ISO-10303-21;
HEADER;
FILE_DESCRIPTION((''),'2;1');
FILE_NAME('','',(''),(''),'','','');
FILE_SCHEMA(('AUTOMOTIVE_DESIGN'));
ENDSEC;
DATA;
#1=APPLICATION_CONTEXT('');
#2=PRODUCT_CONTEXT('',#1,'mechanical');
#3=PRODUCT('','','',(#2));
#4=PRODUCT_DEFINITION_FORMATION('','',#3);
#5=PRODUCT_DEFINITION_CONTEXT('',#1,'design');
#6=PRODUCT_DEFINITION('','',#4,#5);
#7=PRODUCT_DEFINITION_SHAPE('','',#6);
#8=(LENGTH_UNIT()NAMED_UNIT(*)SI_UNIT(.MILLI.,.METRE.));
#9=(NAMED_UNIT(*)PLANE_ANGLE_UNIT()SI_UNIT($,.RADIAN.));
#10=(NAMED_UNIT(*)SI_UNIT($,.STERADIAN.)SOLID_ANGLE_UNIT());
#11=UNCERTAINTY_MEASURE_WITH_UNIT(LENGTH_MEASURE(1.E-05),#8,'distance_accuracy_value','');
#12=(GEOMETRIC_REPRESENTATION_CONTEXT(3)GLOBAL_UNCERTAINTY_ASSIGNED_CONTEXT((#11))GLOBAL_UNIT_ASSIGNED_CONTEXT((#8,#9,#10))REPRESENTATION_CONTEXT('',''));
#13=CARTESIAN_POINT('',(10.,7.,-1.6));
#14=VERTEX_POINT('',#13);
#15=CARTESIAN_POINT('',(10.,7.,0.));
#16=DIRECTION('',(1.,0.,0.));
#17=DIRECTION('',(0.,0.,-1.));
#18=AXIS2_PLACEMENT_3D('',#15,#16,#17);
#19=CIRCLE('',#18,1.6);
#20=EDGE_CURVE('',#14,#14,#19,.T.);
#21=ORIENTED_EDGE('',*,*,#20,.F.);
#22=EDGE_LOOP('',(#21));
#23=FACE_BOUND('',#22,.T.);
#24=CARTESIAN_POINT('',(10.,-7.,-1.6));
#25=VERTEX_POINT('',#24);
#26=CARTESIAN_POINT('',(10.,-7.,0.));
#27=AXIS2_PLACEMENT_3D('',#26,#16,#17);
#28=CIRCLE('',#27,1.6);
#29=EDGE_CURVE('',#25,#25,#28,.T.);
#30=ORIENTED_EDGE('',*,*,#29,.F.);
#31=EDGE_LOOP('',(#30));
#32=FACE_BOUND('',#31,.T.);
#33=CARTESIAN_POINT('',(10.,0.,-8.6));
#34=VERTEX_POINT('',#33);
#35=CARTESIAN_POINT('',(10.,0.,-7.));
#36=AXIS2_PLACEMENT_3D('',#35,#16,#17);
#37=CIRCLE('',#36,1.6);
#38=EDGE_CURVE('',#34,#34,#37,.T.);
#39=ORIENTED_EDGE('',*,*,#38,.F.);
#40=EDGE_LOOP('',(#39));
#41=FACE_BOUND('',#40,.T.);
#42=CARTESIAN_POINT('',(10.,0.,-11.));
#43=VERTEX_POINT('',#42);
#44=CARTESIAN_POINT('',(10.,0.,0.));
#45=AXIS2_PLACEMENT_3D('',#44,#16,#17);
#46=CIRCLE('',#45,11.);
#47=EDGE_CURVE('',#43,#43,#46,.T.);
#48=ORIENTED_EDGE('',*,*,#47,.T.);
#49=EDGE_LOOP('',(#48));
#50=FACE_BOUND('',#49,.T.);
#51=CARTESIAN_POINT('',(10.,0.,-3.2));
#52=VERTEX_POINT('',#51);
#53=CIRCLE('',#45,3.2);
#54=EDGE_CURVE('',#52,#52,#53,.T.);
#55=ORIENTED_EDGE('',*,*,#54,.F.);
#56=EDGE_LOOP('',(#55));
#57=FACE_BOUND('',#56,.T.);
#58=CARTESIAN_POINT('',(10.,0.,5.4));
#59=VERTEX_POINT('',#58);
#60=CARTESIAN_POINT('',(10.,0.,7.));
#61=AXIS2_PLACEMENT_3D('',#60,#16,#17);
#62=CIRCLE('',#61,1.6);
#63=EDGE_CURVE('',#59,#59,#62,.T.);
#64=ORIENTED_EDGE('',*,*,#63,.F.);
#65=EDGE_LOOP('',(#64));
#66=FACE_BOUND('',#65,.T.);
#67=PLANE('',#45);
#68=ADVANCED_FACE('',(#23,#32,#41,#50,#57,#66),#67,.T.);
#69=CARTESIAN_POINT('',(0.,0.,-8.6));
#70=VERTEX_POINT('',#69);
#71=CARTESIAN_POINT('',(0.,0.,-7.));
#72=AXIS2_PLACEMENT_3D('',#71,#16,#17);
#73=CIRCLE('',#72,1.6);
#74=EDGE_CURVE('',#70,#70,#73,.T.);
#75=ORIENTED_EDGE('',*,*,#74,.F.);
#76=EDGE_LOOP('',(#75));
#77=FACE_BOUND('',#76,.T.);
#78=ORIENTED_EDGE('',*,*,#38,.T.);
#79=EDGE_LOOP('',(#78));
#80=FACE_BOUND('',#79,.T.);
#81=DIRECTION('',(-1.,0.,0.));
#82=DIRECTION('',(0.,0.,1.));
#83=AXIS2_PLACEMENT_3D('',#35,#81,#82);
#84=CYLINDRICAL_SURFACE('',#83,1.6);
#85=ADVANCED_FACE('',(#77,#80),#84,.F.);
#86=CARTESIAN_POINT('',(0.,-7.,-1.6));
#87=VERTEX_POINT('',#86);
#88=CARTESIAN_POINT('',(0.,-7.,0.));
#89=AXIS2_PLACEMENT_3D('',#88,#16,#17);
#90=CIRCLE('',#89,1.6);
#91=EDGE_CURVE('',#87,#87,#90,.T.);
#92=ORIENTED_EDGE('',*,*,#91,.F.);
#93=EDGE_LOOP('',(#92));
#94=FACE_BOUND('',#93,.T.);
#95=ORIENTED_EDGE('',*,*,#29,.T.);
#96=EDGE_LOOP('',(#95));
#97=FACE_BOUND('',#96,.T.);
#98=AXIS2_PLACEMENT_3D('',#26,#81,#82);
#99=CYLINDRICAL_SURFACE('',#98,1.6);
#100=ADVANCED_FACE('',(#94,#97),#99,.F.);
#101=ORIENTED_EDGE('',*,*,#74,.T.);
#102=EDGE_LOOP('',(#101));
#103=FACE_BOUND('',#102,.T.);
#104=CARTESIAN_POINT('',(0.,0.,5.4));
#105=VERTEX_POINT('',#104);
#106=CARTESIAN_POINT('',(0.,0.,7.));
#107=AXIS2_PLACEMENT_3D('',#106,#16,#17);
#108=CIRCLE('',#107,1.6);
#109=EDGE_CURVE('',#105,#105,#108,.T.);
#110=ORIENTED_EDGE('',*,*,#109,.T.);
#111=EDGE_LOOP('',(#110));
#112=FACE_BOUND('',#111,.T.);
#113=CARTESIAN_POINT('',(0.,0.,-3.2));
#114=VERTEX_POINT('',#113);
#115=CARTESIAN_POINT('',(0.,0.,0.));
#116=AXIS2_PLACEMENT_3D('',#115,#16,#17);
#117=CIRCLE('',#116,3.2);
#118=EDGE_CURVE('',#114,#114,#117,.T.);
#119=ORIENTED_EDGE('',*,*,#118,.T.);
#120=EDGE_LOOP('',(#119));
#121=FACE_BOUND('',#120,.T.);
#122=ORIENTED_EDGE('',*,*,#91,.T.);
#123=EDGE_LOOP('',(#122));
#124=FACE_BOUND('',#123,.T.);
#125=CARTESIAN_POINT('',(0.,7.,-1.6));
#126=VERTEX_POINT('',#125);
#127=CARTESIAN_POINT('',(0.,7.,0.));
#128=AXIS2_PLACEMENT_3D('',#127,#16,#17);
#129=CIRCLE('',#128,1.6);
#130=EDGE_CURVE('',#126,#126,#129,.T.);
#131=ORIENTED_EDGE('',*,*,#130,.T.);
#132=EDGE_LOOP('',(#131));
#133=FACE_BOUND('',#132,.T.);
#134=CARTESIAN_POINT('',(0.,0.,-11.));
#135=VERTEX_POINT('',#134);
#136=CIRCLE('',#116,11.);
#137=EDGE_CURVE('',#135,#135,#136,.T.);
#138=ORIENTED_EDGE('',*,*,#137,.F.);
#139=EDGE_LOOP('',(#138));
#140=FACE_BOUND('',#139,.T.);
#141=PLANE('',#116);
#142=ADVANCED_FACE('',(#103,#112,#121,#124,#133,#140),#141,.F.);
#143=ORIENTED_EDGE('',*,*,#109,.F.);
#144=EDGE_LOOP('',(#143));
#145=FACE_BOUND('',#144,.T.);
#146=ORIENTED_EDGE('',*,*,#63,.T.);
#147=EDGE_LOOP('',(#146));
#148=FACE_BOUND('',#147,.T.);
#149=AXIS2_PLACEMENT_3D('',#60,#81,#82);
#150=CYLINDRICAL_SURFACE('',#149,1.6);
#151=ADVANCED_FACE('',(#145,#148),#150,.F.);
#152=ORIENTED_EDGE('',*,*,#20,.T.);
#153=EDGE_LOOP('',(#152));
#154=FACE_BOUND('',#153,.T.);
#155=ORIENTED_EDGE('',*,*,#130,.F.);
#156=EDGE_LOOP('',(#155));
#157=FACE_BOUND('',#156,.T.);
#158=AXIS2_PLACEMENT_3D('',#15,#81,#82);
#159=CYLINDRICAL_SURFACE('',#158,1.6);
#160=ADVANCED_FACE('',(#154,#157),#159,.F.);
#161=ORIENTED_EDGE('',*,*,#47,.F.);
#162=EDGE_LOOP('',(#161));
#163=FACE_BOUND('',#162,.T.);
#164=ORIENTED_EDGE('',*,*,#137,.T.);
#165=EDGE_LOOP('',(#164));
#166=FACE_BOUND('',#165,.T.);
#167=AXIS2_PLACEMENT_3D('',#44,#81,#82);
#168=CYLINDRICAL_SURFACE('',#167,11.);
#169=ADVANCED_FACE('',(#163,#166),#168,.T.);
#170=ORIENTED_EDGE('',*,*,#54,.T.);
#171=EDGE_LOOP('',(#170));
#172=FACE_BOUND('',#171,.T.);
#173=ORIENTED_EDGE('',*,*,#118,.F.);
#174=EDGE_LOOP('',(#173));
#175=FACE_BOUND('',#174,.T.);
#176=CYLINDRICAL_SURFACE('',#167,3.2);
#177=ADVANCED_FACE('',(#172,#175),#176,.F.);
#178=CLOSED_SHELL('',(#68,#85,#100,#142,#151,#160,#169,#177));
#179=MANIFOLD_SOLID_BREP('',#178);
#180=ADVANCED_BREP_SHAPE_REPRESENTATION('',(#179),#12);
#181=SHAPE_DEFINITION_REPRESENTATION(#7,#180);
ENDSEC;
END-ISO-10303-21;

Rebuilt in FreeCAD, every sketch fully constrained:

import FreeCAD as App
import Part
import Sketcher
Q = App.Units.Quantity

doc = App.newDocument("Part")
body = doc.addObject("PartDesign::Body", "Body")

sketch1 = body.newObject("Sketcher::SketchObject", "Sketch")
sketch1.AttachmentSupport = (doc.getObject("YZ_Plane"), [""])
sketch1.MapMode = "FlatFace"
sketch1.addGeometry(Part.Circle(App.Vector(0, 0, 0), App.Vector(0, 0, 1), 11), False)
sketch1.addGeometry(Part.Circle(App.Vector(-7, 0, 0), App.Vector(0, 0, 1), 1.6), False)
sketch1.addGeometry(Part.Circle(App.Vector(0, 7, 0), App.Vector(0, 0, 1), 1.6), False)
sketch1.addGeometry(Part.Circle(App.Vector(0, 0, 0), App.Vector(0, 0, 1), 3.2), False)
sketch1.addGeometry(Part.Circle(App.Vector(0, -7, 0), App.Vector(0, 0, 1), 1.6), False)
sketch1.addGeometry(Part.Circle(App.Vector(7, 0, 0), App.Vector(0, 0, 1), 1.6), False)
sketch1.addConstraint(Sketcher.Constraint("Coincident", 0, 3, -1, 1))
sketch1.addConstraint(Sketcher.Constraint("Coincident", 3, 3, -1, 1))
sketch1.addConstraint(Sketcher.Constraint("Equal", 1, 2))
sketch1.addConstraint(Sketcher.Constraint("Equal", 2, 4))
sketch1.addConstraint(Sketcher.Constraint("Equal", 4, 5))
sketch1.addConstraint(Sketcher.Constraint("Symmetric", 2, 3, 4, 3, -1, 1))
sketch1.addConstraint(Sketcher.Constraint("Symmetric", 1, 3, 5, 3, -1, 1))
sketch1.addConstraint(Sketcher.Constraint("PointOnObject", 1, 3, -1))
sketch1.addConstraint(Sketcher.Constraint("PointOnObject", 2, 3, -2))
sketch1.addConstraint(Sketcher.Constraint("Diameter", 0, Q("22 mm")))
sketch1.addConstraint(Sketcher.Constraint("Diameter", 1, Q("3.2 mm")))
sketch1.addConstraint(Sketcher.Constraint("Diameter", 3, Q("6.4 mm")))
sketch1.addConstraint(Sketcher.Constraint("DistanceX", 1, 3, -1, 1, Q("7 mm")))
sketch1.addConstraint(Sketcher.Constraint("DistanceY", -1, 1, 2, 3, Q("7 mm")))
pad1 = body.newObject("PartDesign::Pad", "Pad")
pad1.Profile = sketch1
pad1.Length = 10

doc.recompute()
